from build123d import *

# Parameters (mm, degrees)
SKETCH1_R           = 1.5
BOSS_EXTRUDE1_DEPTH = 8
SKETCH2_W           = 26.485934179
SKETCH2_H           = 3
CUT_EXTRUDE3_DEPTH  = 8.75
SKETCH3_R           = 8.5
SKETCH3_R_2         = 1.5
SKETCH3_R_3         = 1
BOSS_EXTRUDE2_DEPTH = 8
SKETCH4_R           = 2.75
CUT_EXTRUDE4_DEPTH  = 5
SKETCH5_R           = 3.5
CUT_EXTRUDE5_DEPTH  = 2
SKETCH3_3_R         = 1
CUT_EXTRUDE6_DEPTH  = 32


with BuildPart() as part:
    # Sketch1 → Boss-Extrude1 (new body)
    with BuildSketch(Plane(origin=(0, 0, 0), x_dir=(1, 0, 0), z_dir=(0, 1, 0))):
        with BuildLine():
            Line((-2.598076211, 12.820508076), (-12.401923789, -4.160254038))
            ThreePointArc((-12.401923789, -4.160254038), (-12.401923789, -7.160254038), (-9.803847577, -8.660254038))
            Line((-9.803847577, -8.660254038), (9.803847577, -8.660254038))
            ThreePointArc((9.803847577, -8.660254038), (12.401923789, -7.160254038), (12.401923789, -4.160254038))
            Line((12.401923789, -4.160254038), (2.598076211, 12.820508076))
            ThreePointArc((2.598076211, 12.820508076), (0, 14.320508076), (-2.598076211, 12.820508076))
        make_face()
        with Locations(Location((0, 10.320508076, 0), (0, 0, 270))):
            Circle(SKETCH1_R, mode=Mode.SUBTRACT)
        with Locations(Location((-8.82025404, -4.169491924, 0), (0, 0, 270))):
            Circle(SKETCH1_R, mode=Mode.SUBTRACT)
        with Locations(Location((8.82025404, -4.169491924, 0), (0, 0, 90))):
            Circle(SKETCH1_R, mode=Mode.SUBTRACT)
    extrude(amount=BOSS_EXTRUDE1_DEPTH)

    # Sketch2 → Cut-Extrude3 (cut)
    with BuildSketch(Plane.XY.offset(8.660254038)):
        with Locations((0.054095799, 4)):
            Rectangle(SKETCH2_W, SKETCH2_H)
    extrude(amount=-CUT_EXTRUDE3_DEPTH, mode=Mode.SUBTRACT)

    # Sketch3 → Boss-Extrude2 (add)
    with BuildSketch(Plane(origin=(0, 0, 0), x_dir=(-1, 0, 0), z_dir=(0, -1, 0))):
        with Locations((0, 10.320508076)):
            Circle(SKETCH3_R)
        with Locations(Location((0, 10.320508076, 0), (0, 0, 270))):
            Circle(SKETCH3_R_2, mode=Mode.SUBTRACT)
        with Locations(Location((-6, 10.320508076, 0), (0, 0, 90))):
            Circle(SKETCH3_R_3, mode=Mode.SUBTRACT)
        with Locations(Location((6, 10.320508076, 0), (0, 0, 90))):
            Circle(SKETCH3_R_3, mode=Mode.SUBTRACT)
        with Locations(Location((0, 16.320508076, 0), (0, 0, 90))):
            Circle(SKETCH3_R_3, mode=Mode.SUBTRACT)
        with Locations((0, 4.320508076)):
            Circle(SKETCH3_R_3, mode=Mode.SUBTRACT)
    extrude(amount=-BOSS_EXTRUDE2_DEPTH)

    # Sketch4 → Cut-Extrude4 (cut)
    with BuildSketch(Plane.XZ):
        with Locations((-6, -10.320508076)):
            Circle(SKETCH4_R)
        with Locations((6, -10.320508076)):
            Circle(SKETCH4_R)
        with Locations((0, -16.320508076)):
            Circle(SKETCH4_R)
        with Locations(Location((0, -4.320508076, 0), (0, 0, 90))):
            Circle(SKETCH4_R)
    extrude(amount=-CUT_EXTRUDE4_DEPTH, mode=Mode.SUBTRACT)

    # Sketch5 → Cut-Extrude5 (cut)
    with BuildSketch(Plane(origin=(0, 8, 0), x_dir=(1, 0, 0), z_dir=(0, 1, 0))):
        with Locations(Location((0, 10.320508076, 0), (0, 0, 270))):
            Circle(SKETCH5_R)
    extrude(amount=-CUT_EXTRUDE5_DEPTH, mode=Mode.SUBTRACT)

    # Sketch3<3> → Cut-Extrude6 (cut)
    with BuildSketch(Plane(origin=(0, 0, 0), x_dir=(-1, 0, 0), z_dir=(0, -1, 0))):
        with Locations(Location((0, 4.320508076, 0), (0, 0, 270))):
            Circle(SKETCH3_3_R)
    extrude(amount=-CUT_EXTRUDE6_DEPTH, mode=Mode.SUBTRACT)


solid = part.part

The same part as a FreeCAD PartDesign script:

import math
import FreeCAD as App
import Part
import Sketcher
from FreeCAD import Vector
Q = App.Units.Quantity


def add_polygon(sketch, points):
    """Adds a closed chain of lines whose ends are joined by coincident constraints."""
    first, n = sketch.GeometryCount, len(points)
    for a, b in zip(points, points[1:] + points[:1]):
        sketch.addGeometry(Part.LineSegment(App.Vector(*a, 0), App.Vector(*b, 0)), False)
    for i in range(n):
        sketch.addConstraint(Sketcher.Constraint("Coincident", first + i, 2, first + (i + 1) % n, 1))

doc = App.newDocument("Part")
params = doc.addObject("Spreadsheet::Sheet", "Params")
for row, (alias, value) in enumerate([
    ("sketch1_diameter", "3 mm"),
    ("sketch1_radius", "3 mm"),
    ("pad1_length", "8 mm"),
    ("sketch2_height", "3 mm"),
    ("pocket1_length", "8.75 mm"),
    ("sketch3_diameter", "17 mm"),
    ("sketch3_diameter2", "2 mm"),
    ("sketch3_diameter3", "3 mm"),
    ("pad2_length", "8 mm"),
    ("sketch4_diameter", "5.5 mm"),
    ("pocket2_length", "5 mm"),
    ("sketch5_diameter", "7 mm"),
    ("pocket3_length", "2 mm"),
    ("sketch6_diameter", "2 mm"),
    ("pocket4_length", "32 mm"),
], start=1):
    params.set(f"A{row}", alias)
    params.set(f"B{row}", "=" + value)
    params.setAlias(f"B{row}", alias)

body = doc.addObject("PartDesign::Body", "Body")

# Sketch on XZ plane
sketch1 = doc.addObject("Sketcher::SketchObject", "Sketch")
body.addObject(sketch1)
sketch1.AttachmentSupport = (doc.XZ_Plane, [""])
sketch1.MapMode = "FlatFace"
sketch1.addGeometry([
    Part.LineSegment(Vector(-2.6, -12.8, 0), Vector(-12.4, 4.2, 0)),  # 0
    Part.ArcOfCircle(Part.Circle(Vector(-9.8, 5.7, 0), Vector(0, 0, 1), 3), math.radians(90), math.radians(210)),  # 1
    Part.LineSegment(Vector(-9.8, 8.7, 0), Vector(9.8, 8.7, 0)),  # 2
    Part.ArcOfCircle(Part.Circle(Vector(9.8, 5.7, 0), Vector(0, 0, 1), 3), math.radians(-30), math.radians(90)),  # 3
    Part.LineSegment(Vector(12.4, 4.2, 0), Vector(2.6, -12.8, 0)),  # 4
    Part.ArcOfCircle(Part.Circle(Vector(0, -11.3, 0), Vector(0, 0, 1), 3), math.radians(-150), math.radians(-30)),  # 5
    Part.Circle(Vector(-8.8, 4.2, 0), Vector(0, 0, 1), 1.5),  # 6
    Part.Circle(Vector(8.8, 4.2, 0), Vector(0, 0, 1), 1.5),  # 7
    Part.Circle(Vector(0, -10.3, 0), Vector(0, 0, 1), 1.5),  # 8
], False)
sketch1.addConstraint([
    Sketcher.Constraint("Tangent", 0, 2, 1, 2),
    Sketcher.Constraint("Tangent", 1, 1, 2, 1),
    Sketcher.Constraint("Tangent", 2, 2, 3, 2),
    Sketcher.Constraint("Tangent", 3, 1, 4, 1),
    Sketcher.Constraint("Tangent", 4, 2, 5, 2),
    Sketcher.Constraint("Tangent", 5, 1, 0, 1),
    Sketcher.Constraint("Horizontal", 2),
    Sketcher.Constraint("Equal", 1, 3),
    Sketcher.Constraint("Equal", 3, 5),
    Sketcher.Constraint("Equal", 6, 7),
    Sketcher.Constraint("Equal", 7, 8),
    Sketcher.Constraint("Symmetric", 6, 3, 7, 3, -2),
    Sketcher.Constraint("Symmetric", 0, 2, 3, 1, -2),
    Sketcher.Constraint("PointOnObject", 8, 3, -2),
    Sketcher.Constraint("Diameter", 6, 3.0),
    Sketcher.Constraint("Radius", 1, 3.0),
    Sketcher.Constraint("Angle", 0, Q("120 deg")),
    Sketcher.Constraint("DistanceY", 5, 3, 8, 3, 1.0),
    Sketcher.Constraint("DistanceY", 5, 3, 6, 3, 15.49),
    Sketcher.Constraint("DistanceX", 6, 3, 3, 3, 18.624102),
    Sketcher.Constraint("DistanceX", 2, 1, 2, 2, 19.607695),
    Sketcher.Constraint("DistanceY", 5, 3, -1, 1, 11.320508),
])
sketch1.setExpression("Constraints[14]", "Params.sketch1_diameter")
sketch1.setExpression("Constraints[15]", "Params.sketch1_radius")
pad1 = doc.addObject("PartDesign::Pad", "Pad")
body.addObject(pad1)
pad1.Profile = sketch1
pad1.setExpression("Length", "Params.pad1_length")
pad1.Reversed = True

# Sketch on XY plane
sketch2 = doc.addObject("Sketcher::SketchObject", "Sketch001")
body.addObject(sketch2)
sketch2.AttachmentSupport = (doc.XY_Plane, [""])
sketch2.MapMode = "FlatFace"
sketch2.AttachmentOffset = App.Placement(Vector(0, 0, 8.660254), App.Rotation())
add_polygon(sketch2, [(-13.2, 5.5), (-13.2, 2.5), (13.3, 2.5), (13.3, 5.5)])  # lines 0-3
sketch2.addConstraint([
    Sketcher.Constraint("Vertical", 0),
    Sketcher.Constraint("Horizontal", 1),
    Sketcher.Constraint("Vertical", 2),
    Sketcher.Constraint("Horizontal", 3),
    Sketcher.Constraint("DistanceY", 0, 2, 0, 1, 3.0),
    Sketcher.Constraint("DistanceY", -1, 1, 0, 2, 2.5),
    Sketcher.Constraint("DistanceX", 1, 1, 1, 2, 26.485934),
    Sketcher.Constraint("DistanceX", 0, 2, -1, 1, 13.188871),
])
sketch2.setExpression("Constraints[8]", "Params.sketch2_height")
pocket1 = doc.addObject("PartDesign::Pocket", "Pocket")
body.addObject(pocket1)
pocket1.Profile = sketch2
pocket1.setExpression("Length", "Params.pocket1_length")

# Sketch on XZ plane
sketch3 = doc.addObject("Sketcher::SketchObject", "Sketch002")
body.addObject(sketch3)
sketch3.AttachmentSupport = (doc.XZ_Plane, [""])
sketch3.MapMode = "FlatFace"
sketch3.addGeometry([
    Part.Circle(Vector(0, -10.3, 0), Vector(0, 0, 1), 8.5),  # 0
    Part.Circle(Vector(6, -10.3, 0), Vector(0, 0, 1), 1),  # 1
    Part.Circle(Vector(0, -4.3, 0), Vector(0, 0, 1), 1),  # 2
    Part.Circle(Vector(0, -10.3, 0), Vector(0, 0, 1), 1.5),  # 3
    Part.Circle(Vector(-6, -10.3, 0), Vector(0, 0, 1), 1),  # 4
    Part.Circle(Vector(0, -16.3, 0), Vector(0, 0, 1), 1),  # 5
], False)
sketch3.addConstraint([
    Sketcher.Constraint("Coincident", 3, 3, 0, 3),
    Sketcher.Constraint("Equal", 1, 2),
    Sketcher.Constraint("Equal", 2, 4),
    Sketcher.Constraint("Equal", 4, 5),
    Sketcher.Constraint("Symmetric", 1, 3, 4, 3, -2),
    Sketcher.Constraint("PointOnObject", 0, 3, -2),
    Sketcher.Constraint("PointOnObject", 2, 3, -2),
    Sketcher.Constraint("PointOnObject", 5, 3, -2),
    Sketcher.Constraint("Horizontal", 0, 3, 1, 3),
    Sketcher.Constraint("Diameter", 0, 17.0),
    Sketcher.Constraint("Diameter", 1, 2.0),
    Sketcher.Constraint("Diameter", 3, 3.0),
    Sketcher.Constraint("DistanceX", -1, 1, 1, 3, 6.0),
    Sketcher.Constraint("DistanceY", 0, 3, 2, 3, 6.0),
    Sketcher.Constraint("DistanceY", 5, 3, 0, 3, 6.0),
    Sketcher.Constraint("DistanceY", 0, 3, -1, 1, 10.320508),
])
sketch3.setExpression("Constraints[9]", "Params.sketch3_diameter")
sketch3.setExpression("Constraints[10]", "Params.sketch3_diameter2")
sketch3.setExpression("Constraints[11]", "Params.sketch3_diameter3")
pad2 = doc.addObject("PartDesign::Pad", "Pad001")
body.addObject(pad2)
pad2.Profile = sketch3
pad2.setExpression("Length", "Params.pad2_length")
pad2.Reversed = True

# Sketch on XZ plane
sketch4 = doc.addObject("Sketcher::SketchObject", "Sketch003")
body.addObject(sketch4)
sketch4.AttachmentSupport = (doc.XZ_Plane, [""])
sketch4.MapMode = "FlatFace"
sketch4.addGeometry([
    Part.Circle(Vector(-6, -10.3, 0), Vector(0, 0, 1), 2.8),
    Part.Circle(Vector(6, -10.3, 0), Vector(0, 0, 1), 2.8),
    Part.Circle(Vector(0, -16.3, 0), Vector(0, 0, 1), 2.8),
    Part.Circle(Vector(0, -4.3, 0), Vector(0, 0, 1), 2.8),
], False)
sketch4.addConstraint([
    Sketcher.Constraint("Equal", 0, 1),
    Sketcher.Constraint("Equal", 1, 2),
    Sketcher.Constraint("Equal", 2, 3),
    Sketcher.Constraint("Symmetric", 0, 3, 1, 3, -2),
    Sketcher.Constraint("PointOnObject", 2, 3, -2),
    Sketcher.Constraint("PointOnObject", 3, 3, -2),
    Sketcher.Constraint("Diameter", 0, 5.5),
    Sketcher.Constraint("DistanceX", 0, 3, -1, 1, 6.0),
    Sketcher.Constraint("DistanceY", 2, 3, 0, 3, 6.0),
    Sketcher.Constraint("DistanceY", 0, 3, 3, 3, 6.0),
    Sketcher.Constraint("DistanceY", 0, 3, -1, 1, 10.320508),
])
sketch4.setExpression("Constraints[6]", "Params.sketch4_diameter")
pocket2 = doc.addObject("PartDesign::Pocket", "Pocket001")
body.addObject(pocket2)
pocket2.Profile = sketch4
pocket2.setExpression("Length", "Params.pocket2_length")

# Sketch on XZ plane
sketch5 = doc.addObject("Sketcher::SketchObject", "Sketch004")
body.addObject(sketch5)
sketch5.AttachmentSupport = (doc.XZ_Plane, [""])
sketch5.MapMode = "FlatFace"
sketch5.AttachmentOffset = App.Placement(Vector(0, 0, -8), App.Rotation())
sketch5.addGeometry(Part.Circle(Vector(0, -10.3, 0), Vector(0, 0, 1), 3.5), False)
sketch5.addConstraint([
    Sketcher.Constraint("PointOnObject", 0, 3, -2),
    Sketcher.Constraint("Diameter", 0, 7.0),
    Sketcher.Constraint("DistanceY", 0, 3, -1, 1, 10.320508),
])
sketch5.setExpression("Constraints[1]", "Params.sketch5_diameter")
pocket3 = doc.addObject("PartDesign::Pocket", "Pocket002")
body.addObject(pocket3)
pocket3.Profile = sketch5
pocket3.setExpression("Length", "Params.pocket3_length")
pocket3.Reversed = True

# Sketch on XZ plane
sketch6 = doc.addObject("Sketcher::SketchObject", "Sketch005")
body.addObject(sketch6)
sketch6.AttachmentSupport = (doc.XZ_Plane, [""])
sketch6.MapMode = "FlatFace"
sketch6.addGeometry(Part.Circle(Vector(0, -4.3, 0), Vector(0, 0, 1), 1), False)
sketch6.addConstraint([
    Sketcher.Constraint("PointOnObject", 0, 3, -2),
    Sketcher.Constraint("Diameter", 0, 2.0),
    Sketcher.Constraint("DistanceY", 0, 3, -1, 1, 4.320508),
])
sketch6.setExpression("Constraints[1]", "Params.sketch6_diameter")
pocket4 = doc.addObject("PartDesign::Pocket", "Pocket003")
body.addObject(pocket4)
pocket4.Profile = sketch6
pocket4.setExpression("Length", "Params.pocket4_length")

doc.recompute()
